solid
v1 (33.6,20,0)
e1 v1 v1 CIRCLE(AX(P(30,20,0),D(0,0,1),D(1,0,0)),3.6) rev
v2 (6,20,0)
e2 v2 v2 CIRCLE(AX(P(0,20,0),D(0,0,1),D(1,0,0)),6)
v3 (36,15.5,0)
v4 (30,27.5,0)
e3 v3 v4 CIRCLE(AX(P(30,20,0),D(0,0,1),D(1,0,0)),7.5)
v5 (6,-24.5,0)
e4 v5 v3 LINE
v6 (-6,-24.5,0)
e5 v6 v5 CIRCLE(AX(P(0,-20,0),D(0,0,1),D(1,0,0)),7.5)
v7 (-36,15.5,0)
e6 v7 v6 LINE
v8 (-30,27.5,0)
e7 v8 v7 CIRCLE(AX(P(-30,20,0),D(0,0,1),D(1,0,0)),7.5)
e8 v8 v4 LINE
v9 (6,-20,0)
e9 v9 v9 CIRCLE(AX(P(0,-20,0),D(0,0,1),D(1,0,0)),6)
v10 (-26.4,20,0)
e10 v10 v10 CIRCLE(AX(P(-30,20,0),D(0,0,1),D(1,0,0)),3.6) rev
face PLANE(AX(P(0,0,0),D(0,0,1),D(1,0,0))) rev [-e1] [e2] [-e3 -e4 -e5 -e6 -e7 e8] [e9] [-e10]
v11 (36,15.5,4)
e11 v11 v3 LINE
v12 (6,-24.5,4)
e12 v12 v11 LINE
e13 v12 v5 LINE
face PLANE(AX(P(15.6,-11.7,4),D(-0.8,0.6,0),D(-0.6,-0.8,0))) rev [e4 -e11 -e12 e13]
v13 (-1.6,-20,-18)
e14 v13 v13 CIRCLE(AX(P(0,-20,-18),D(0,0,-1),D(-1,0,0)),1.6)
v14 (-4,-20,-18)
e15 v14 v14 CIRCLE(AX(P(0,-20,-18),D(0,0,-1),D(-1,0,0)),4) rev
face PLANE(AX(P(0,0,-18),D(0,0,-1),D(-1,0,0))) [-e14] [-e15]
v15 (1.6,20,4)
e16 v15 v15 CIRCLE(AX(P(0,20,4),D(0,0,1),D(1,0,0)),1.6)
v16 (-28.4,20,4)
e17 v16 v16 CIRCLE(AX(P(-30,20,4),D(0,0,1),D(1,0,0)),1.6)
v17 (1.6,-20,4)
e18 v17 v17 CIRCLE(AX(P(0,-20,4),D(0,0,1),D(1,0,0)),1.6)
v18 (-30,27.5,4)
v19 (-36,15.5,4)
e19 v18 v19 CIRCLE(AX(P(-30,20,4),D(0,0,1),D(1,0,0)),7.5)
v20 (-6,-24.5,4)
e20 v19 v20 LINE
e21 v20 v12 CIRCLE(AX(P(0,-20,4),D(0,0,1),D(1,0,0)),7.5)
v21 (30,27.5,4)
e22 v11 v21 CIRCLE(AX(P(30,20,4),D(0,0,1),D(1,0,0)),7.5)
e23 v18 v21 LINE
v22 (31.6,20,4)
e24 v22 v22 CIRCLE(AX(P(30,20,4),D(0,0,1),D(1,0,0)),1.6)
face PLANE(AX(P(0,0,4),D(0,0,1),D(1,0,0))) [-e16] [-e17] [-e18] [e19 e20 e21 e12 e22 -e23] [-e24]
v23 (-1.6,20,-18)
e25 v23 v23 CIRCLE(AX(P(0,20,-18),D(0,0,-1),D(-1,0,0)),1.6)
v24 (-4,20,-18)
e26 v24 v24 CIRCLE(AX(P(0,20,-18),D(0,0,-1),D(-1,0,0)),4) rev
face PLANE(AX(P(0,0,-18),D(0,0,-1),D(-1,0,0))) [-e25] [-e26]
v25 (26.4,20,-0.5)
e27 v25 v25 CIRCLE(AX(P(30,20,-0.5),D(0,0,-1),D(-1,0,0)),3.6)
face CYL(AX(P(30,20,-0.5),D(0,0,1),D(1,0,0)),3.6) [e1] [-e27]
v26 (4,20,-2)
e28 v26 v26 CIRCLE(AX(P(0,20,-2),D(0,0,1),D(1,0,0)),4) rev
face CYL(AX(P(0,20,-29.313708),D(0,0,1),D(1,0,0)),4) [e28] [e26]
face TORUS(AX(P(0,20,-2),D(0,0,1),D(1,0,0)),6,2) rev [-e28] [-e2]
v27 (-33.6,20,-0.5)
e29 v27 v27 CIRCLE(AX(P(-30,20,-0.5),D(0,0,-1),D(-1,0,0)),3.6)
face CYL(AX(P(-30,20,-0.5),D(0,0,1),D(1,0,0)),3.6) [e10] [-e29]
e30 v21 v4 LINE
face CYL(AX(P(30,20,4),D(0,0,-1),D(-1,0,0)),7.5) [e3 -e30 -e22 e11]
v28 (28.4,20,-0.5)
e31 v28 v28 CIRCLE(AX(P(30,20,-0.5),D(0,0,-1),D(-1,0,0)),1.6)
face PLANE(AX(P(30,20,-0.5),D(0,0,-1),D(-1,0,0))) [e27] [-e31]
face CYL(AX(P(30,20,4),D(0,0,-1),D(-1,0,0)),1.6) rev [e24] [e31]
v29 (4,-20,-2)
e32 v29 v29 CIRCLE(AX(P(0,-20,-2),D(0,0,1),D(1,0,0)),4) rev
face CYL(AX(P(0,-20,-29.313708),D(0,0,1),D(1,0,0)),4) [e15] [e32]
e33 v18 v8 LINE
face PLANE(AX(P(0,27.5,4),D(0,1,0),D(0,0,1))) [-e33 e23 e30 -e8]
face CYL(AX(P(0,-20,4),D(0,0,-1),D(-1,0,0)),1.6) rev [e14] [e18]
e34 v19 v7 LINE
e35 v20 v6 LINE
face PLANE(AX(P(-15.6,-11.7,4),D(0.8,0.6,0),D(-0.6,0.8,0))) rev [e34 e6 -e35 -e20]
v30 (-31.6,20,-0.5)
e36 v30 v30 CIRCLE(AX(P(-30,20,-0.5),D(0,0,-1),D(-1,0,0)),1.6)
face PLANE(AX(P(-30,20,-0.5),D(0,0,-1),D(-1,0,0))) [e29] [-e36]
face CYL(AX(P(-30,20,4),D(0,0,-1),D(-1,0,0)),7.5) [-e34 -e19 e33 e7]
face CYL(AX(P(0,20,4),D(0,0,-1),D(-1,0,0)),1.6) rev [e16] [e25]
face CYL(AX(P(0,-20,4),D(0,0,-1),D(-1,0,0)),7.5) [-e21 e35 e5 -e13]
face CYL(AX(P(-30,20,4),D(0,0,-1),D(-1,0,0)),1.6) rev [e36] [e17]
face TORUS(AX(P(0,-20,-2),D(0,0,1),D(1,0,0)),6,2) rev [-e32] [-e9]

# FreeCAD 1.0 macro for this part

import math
import FreeCAD as App
import Part
import Sketcher
Q = App.Units.Quantity


def edges_at(feature, points):
    """Names of the edges that pass closest to the given points."""
    edges = feature.Shape.Edges
    near = lambda p: min(range(len(edges)), key=lambda i: edges[i].distToShape(Part.Vertex(*p))[0])
    return sorted({f"Edge{near(p) + 1}" for p in points})

doc = App.newDocument("Part")
params = doc.addObject("Spreadsheet::Sheet", "Params")
for row, (alias, value) in enumerate([
    ("sketch1_diameter", "3.2 mm"),
    ("sketch1_radius", "7.5 mm"),
    ("sketch1_width", "60 mm"),
    ("sketch1_length", "50 mm"),
    ("pad1_length", "4 mm"),
    ("sketch2_diameter", "8 mm"),
    ("sketch2_diameter2", "3.2 mm"),
    ("pad2_length", "18 mm"),
    ("sketch3_diameter", "7.2 mm"),
    ("sketch3_diameter2", "3.2 mm"),
    ("pad3_length", "0.5 mm"),
    ("fillet_radius", "2 mm"),
], start=1):
    params.set(f"A{row}", alias)
    params.set(f"B{row}", "=" + value)
    params.setAlias(f"B{row}", alias)

body = doc.addObject("PartDesign::Body", "Body")

sketch1 = body.newObject("Sketcher::SketchObject", "Sketch")
sketch1.AttachmentSupport = (doc.getObject("XY_Plane"), [""])
sketch1.MapMode = "FlatFace"
sketch1.addGeometry(Part.LineSegment(App.Vector(-36, 15.5, 0), App.Vector(-6, -24.5, 0)), False)
sketch1.addGeometry(Part.ArcOfCircle(Part.Circle(App.Vector(0, -20, 0), App.Vector(0, 0, 1), 7.5), math.radians(-143.130102), math.radians(-36.869898)), False)
sketch1.addGeometry(Part.LineSegment(App.Vector(6, -24.5, 0), App.Vector(36, 15.5, 0)), False)
sketch1.addGeometry(Part.ArcOfCircle(Part.Circle(App.Vector(30, 20, 0), App.Vector(0, 0, 1), 7.5), math.radians(-36.869898), math.radians(90)), False)
sketch1.addGeometry(Part.LineSegment(App.Vector(30, 27.5, 0), App.Vector(-30, 27.5, 0)), False)
sketch1.addGeometry(Part.ArcOfCircle(Part.Circle(App.Vector(-30, 20, 0), App.Vector(0, 0, 1), 7.5), math.radians(90), math.radians(216.869898)), False)
sketch1.addGeometry(Part.Circle(App.Vector(0, -20, 0), App.Vector(0, 0, 1), 1.6), False)
sketch1.addGeometry(Part.Circle(App.Vector(-30, 20, 0), App.Vector(0, 0, 1), 1.6), False)
sketch1.addGeometry(Part.Circle(App.Vector(0, 20, 0), App.Vector(0, 0, 1), 1.6), False)
sketch1.addGeometry(Part.Circle(App.Vector(30, 20, 0), App.Vector(0, 0, 1), 1.6), False)
sketch1.addConstraint(Sketcher.Constraint("Tangent", 0, 2, 1, 1))
sketch1.addConstraint(Sketcher.Constraint("Tangent", 1, 2, 2, 1))
sketch1.addConstraint(Sketcher.Constraint("Tangent", 2, 2, 3, 1))
sketch1.addConstraint(Sketcher.Constraint("Tangent", 3, 2, 4, 1))
sketch1.addConstraint(Sketcher.Constraint("Tangent", 4, 2, 5, 1))
sketch1.addConstraint(Sketcher.Constraint("Tangent", 5, 2, 0, 1))
sketch1.addConstraint(Sketcher.Constraint("Horizontal", 4))
sketch1.addConstraint(Sketcher.Constraint("Coincident", 6, 3, 1, 3))
sketch1.addConstraint(Sketcher.Constraint("Coincident", 7, 3, 5, 3))
sketch1.addConstraint(Sketcher.Constraint("Coincident", 9, 3, 3, 3))
sketch1.addConstraint(Sketcher.Constraint("Equal", 1, 3))
sketch1.addConstraint(Sketcher.Constraint("Equal", 3, 5))
sketch1.addConstraint(Sketcher.Constraint("Equal", 6, 7))
sketch1.addConstraint(Sketcher.Constraint("Equal", 7, 8))
sketch1.addConstraint(Sketcher.Constraint("Equal", 8, 9))
sketch1.addConstraint(Sketcher.Constraint("Symmetric", 1, 3, 8, 3, -1, 1))
sketch1.addConstraint(Sketcher.Constraint("Symmetric", 0, 2, 1, 2, -2))
sketch1.addConstraint(Sketcher.Constraint("Horizontal", 7, 3, 8, 3))
sketch1.addConstraint(Sketcher.Constraint("Diameter", 6, Q("3.2 mm")))
sketch1.addConstraint(Sketcher.Constraint("Radius", 1, Q("7.5 mm")))
sketch1.addConstraint(Sketcher.Constraint("DistanceX", 4, 2, 4, 1, Q("60 mm")))
sketch1.addConstraint(Sketcher.Constraint("Distance", 0, Q("50 mm")))
sketch1.setExpression("Constraints[18]", "Params.sketch1_diameter")
sketch1.setExpression("Constraints[19]", "Params.sketch1_radius")
sketch1.setExpression("Constraints[20]", "Params.sketch1_width")
sketch1.setExpression("Constraints[21]", "Params.sketch1_length")
pad1 = body.newObject("PartDesign::Pad", "Pad")
pad1.Profile = sketch1
pad1.setExpression("Length", "Params.pad1_length")

sketch2 = body.newObject("Sketcher::SketchObject", "Sketch001")
sketch2.AttachmentSupport = (doc.getObject("XY_Plane"), [""])
sketch2.MapMode = "FlatFace"
sketch2.addGeometry(Part.Circle(App.Vector(0, 20, 0), App.Vector(0, 0, 1), 4), False)
sketch2.addGeometry(Part.Circle(App.Vector(0, 20, 0), App.Vector(0, 0, 1), 1.6), False)
sketch2.addGeometry(Part.Circle(App.Vector(0, -20, 0), App.Vector(0, 0, 1), 4), False)
sketch2.addGeometry(Part.Circle(App.Vector(0, -20, 0), App.Vector(0, 0, 1), 1.6), False)
sketch2.addConstraint(Sketcher.Constraint("Coincident", 1, 3, 0, 3))
sketch2.addConstraint(Sketcher.Constraint("Coincident", 3, 3, 2, 3))
sketch2.addConstraint(Sketcher.Constraint("Equal", 0, 2))
sketch2.addConstraint(Sketcher.Constraint("Equal", 1, 3))
sketch2.addConstraint(Sketcher.Constraint("Symmetric", 0, 3, 2, 3, -1, 1))
sketch2.addConstraint(Sketcher.Constraint("PointOnObject", 0, 3, -2))
sketch2.addConstraint(Sketcher.Constraint("Diameter", 0, Q("8 mm")))
sketch2.addConstraint(Sketcher.Constraint("Diameter", 1, Q("3.2 mm")))
sketch2.addConstraint(Sketcher.Constraint("DistanceY", -1, 1, 0, 3, Q("20 mm")))
sketch2.setExpression("Constraints[6]", "Params.sketch2_diameter")
sketch2.setExpression("Constraints[7]", "Params.sketch2_diameter2")
pad2 = body.newObject("PartDesign::Pad", "Pad001")
pad2.Profile = sketch2
pad2.setExpression("Length", "Params.pad2_length")
pad2.Reversed = True

sketch3 = body.newObject("Sketcher::SketchObject", "Sketch002")
sketch3.AttachmentSupport = (doc.getObject("XY_Plane"), [""])
sketch3.MapMode = "FlatFace"
sketch3.addGeometry(Part.Circle(App.Vector(30, 20, 0), App.Vector(0, 0, 1), 3.6), False)
sketch3.addGeometry(Part.Circle(App.Vector(30, 20, 0), App.Vector(0, 0, 1), 1.6), False)
sketch3.addGeometry(Part.Circle(App.Vector(-30, 20, 0), App.Vector(0, 0, 1), 3.6), False)
sketch3.addGeometry(Part.Circle(App.Vector(-30, 20, 0), App.Vector(0, 0, 1), 1.6), False)
sketch3.addConstraint(Sketcher.Constraint("Coincident", 1, 3, 0, 3))
sketch3.addConstraint(Sketcher.Constraint("Coincident", 3, 3, 2, 3))
sketch3.addConstraint(Sketcher.Constraint("Equal", 0, 2))
sketch3.addConstraint(Sketcher.Constraint("Equal", 1, 3))
sketch3.addConstraint(Sketcher.Constraint("Symmetric", 0, 3, 2, 3, -2))
sketch3.addConstraint(Sketcher.Constraint("Diameter", 0, Q("7.2 mm")))
sketch3.addConstraint(Sketcher.Constraint("Diameter", 1, Q("3.2 mm")))
sketch3.addConstraint(Sketcher.Constraint("DistanceX", -1, 1, 0, 3, Q("30 mm")))
sketch3.addConstraint(Sketcher.Constraint("DistanceY", -1, 1, 0, 3, Q("20 mm")))
sketch3.setExpression("Constraints[5]", "Params.sketch3_diameter")
sketch3.setExpression("Constraints[6]", "Params.sketch3_diameter2")
pad3 = body.newObject("PartDesign::Pad", "Pad002")
pad3.Profile = sketch3
pad3.setExpression("Length", "Params.pad3_length")
pad3.Reversed = True
doc.recompute()

fillet = body.newObject("PartDesign::Fillet", "Fillet")
fillet.Base = (pad3, edges_at(pad3, [(-4, 20, 0), (-4, -20, 0)]))
fillet.setExpression("Radius", "Params.fillet_radius")

doc.recompute()
